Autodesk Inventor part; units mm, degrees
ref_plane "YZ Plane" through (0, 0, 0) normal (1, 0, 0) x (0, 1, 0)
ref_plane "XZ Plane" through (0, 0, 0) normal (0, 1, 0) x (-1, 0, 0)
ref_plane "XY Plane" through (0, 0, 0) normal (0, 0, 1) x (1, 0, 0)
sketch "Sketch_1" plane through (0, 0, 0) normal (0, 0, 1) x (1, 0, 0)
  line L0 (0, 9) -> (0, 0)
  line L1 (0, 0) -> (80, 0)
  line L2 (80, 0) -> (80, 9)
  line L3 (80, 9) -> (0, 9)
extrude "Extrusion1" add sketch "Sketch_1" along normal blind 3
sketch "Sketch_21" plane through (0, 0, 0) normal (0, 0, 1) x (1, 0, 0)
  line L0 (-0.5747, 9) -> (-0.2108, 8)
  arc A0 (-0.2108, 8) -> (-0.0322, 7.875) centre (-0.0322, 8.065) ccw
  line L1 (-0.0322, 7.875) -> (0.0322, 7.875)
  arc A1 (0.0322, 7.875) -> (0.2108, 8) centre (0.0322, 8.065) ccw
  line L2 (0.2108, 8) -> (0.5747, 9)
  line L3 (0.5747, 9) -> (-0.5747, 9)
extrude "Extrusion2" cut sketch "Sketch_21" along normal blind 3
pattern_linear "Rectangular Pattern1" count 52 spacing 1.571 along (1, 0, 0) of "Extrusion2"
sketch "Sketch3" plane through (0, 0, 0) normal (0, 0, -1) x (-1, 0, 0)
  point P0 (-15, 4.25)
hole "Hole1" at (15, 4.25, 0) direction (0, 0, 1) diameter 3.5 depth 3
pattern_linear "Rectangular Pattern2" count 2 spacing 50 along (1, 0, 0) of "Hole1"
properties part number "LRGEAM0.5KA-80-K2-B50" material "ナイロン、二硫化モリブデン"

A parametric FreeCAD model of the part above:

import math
import FreeCAD as App
import Part
import Sketcher
Q = App.Units.Quantity


def add_polygon(sketch, points):
    """Adds a closed chain of lines whose ends are joined by coincident constraints."""
    first, n = sketch.GeometryCount, len(points)
    for a, b in zip(points, points[1:] + points[:1]):
        sketch.addGeometry(Part.LineSegment(App.Vector(*a, 0), App.Vector(*b, 0)), False)
    for i in range(n):
        sketch.addConstraint(Sketcher.Constraint("Coincident", first + i, 2, first + (i + 1) % n, 1))

doc = App.newDocument("Part")
body = doc.addObject("PartDesign::Body", "Body")

# Sketch on XY plane
sketch1 = body.newObject("Sketcher::SketchObject", "Sketch")
sketch1.AttachmentSupport = (doc.getObject("XY_Plane"), [""])
sketch1.MapMode = "FlatFace"
add_polygon(sketch1, [(80, 9), (0, 9), (0, 0), (80, 0)])  # lines 0-3
sketch1.addConstraint(Sketcher.Constraint("Horizontal", 0))
sketch1.addConstraint(Sketcher.Constraint("Vertical", 1))
sketch1.addConstraint(Sketcher.Constraint("Horizontal", 2))
sketch1.addConstraint(Sketcher.Constraint("Vertical", 3))
sketch1.addConstraint(Sketcher.Constraint("Coincident", 1, 2, -1, 1))
sketch1.addConstraint(Sketcher.Constraint("DistanceX", 0, 2, 0, 1, Q("80 mm")))
sketch1.addConstraint(Sketcher.Constraint("DistanceY", 1, 2, 1, 1, Q("9 mm")))
pad1 = body.newObject("PartDesign::Pad", "Pad")
pad1.Profile = sketch1
pad1.Length = 3

# Sketch on XY plane
sketch2 = body.newObject("Sketcher::SketchObject", "Sketch001")
sketch2.AttachmentSupport = (doc.getObject("XY_Plane"), [""])
sketch2.MapMode = "FlatFace"
sketch2.addGeometry(Part.LineSegment(App.Vector(0.57, 9, 0), App.Vector(-0.57, 9, 0)), False)
sketch2.addGeometry(Part.LineSegment(App.Vector(-0.57, 9, 0), App.Vector(-0.21, 8, 0)), False)
sketch2.addGeometry(Part.ArcOfCircle(Part.Circle(App.Vector(-0.03, 8.06, 0), App.Vector(0, 0, 1), 0.19), math.radians(-160), math.radians(-90)), False)
sketch2.addGeometry(Part.LineSegment(App.Vector(-0.03, 7.88, 0), App.Vector(0.03, 7.88, 0)), False)
sketch2.addGeometry(Part.ArcOfCircle(Part.Circle(App.Vector(0.03, 8.06, 0), App.Vector(0, 0, 1), 0.19), math.radians(-90), math.radians(-20)), False)
sketch2.addGeometry(Part.LineSegment(App.Vector(0.21, 8, 0), App.Vector(0.57, 9, 0)), False)
sketch2.addConstraint(Sketcher.Constraint("Coincident", 0, 2, 1, 1))
sketch2.addConstraint(Sketcher.Constraint("Tangent", 1, 2, 2, 1))
sketch2.addConstraint(Sketcher.Constraint("Tangent", 2, 2, 3, 1))
sketch2.addConstraint(Sketcher.Constraint("Tangent", 3, 2, 4, 1))
sketch2.addConstraint(Sketcher.Constraint("Tangent", 4, 2, 5, 1))
sketch2.addConstraint(Sketcher.Constraint("Coincident", 5, 2, 0, 1))
sketch2.addConstraint(Sketcher.Constraint("Horizontal", 0))
sketch2.addConstraint(Sketcher.Constraint("Horizontal", 3))
sketch2.addConstraint(Sketcher.Constraint("Equal", 2, 4))
sketch2.addConstraint(Sketcher.Constraint("Symmetric", 1, 2, 4, 2, -2))
sketch2.addConstraint(Sketcher.Constraint("Radius", 2, Q("0.19 mm")))
sketch2.addConstraint(Sketcher.Constraint("DistanceY", -1, 1, 0, 2, Q("9 mm")))
sketch2.addConstraint(Sketcher.Constraint("DistanceY", -1, 1, 1, 2, Q("8 mm")))
sketch2.addConstraint(Sketcher.Constraint("DistanceX", 0, 2, 0, 1, Q("1.1494 mm")))
sketch2.addConstraint(Sketcher.Constraint("DistanceX", 3, 1, 3, 2, Q("0.0644 mm")))
pocket1 = body.newObject("PartDesign::Pocket", "Pocket")
pocket1.Profile = sketch2
pocket1.Length = 3
pocket1.Reversed = True
doc.recompute()

linearpattern = body.newObject("PartDesign::LinearPattern", "LinearPattern")
linearpattern.Originals = [pocket1]
linearpattern.Direction = (doc.getObject("X_Axis"), [""])
linearpattern.Mode = "offset"
linearpattern.Offset = 1.571
linearpattern.Occurrences = 52
body.Tip = linearpattern

# Sketch on XY plane
sketch3 = body.newObject("Sketcher::SketchObject", "Sketch002")
sketch3.AttachmentSupport = (doc.getObject("XY_Plane"), [""])
sketch3.MapMode = "FlatFace"
sketch3.addGeometry(Part.Circle(App.Vector(15, 4.2, 0), App.Vector(0, 0, 1), 1.8), False)
sketch3.addConstraint(Sketcher.Constraint("Diameter", 0, Q("3.5 mm")))
sketch3.addConstraint(Sketcher.Constraint("DistanceX", -1, 1, 0, 3, Q("15 mm")))
sketch3.addConstraint(Sketcher.Constraint("DistanceY", -1, 1, 0, 3, Q("4.25 mm")))
doc.recompute()
hole = body.newObject("PartDesign::Hole", "Hole")
hole.Profile = sketch3
hole.ThreadType = "None"
hole.Diameter = 3.5
hole.DepthType = "Dimension"
hole.Depth = 3
hole.DrillPoint = "Flat"
hole.Reversed = True
doc.recompute()

linearpattern2 = body.newObject("PartDesign::LinearPattern", "LinearPattern001")
linearpattern2.Originals = [hole]
linearpattern2.Direction = (doc.getObject("X_Axis"), [""])
linearpattern2.Mode = "offset"
linearpattern2.Offset = 50
linearpattern2.Occurrences = 2
body.Tip = linearpattern2

doc.recompute()
